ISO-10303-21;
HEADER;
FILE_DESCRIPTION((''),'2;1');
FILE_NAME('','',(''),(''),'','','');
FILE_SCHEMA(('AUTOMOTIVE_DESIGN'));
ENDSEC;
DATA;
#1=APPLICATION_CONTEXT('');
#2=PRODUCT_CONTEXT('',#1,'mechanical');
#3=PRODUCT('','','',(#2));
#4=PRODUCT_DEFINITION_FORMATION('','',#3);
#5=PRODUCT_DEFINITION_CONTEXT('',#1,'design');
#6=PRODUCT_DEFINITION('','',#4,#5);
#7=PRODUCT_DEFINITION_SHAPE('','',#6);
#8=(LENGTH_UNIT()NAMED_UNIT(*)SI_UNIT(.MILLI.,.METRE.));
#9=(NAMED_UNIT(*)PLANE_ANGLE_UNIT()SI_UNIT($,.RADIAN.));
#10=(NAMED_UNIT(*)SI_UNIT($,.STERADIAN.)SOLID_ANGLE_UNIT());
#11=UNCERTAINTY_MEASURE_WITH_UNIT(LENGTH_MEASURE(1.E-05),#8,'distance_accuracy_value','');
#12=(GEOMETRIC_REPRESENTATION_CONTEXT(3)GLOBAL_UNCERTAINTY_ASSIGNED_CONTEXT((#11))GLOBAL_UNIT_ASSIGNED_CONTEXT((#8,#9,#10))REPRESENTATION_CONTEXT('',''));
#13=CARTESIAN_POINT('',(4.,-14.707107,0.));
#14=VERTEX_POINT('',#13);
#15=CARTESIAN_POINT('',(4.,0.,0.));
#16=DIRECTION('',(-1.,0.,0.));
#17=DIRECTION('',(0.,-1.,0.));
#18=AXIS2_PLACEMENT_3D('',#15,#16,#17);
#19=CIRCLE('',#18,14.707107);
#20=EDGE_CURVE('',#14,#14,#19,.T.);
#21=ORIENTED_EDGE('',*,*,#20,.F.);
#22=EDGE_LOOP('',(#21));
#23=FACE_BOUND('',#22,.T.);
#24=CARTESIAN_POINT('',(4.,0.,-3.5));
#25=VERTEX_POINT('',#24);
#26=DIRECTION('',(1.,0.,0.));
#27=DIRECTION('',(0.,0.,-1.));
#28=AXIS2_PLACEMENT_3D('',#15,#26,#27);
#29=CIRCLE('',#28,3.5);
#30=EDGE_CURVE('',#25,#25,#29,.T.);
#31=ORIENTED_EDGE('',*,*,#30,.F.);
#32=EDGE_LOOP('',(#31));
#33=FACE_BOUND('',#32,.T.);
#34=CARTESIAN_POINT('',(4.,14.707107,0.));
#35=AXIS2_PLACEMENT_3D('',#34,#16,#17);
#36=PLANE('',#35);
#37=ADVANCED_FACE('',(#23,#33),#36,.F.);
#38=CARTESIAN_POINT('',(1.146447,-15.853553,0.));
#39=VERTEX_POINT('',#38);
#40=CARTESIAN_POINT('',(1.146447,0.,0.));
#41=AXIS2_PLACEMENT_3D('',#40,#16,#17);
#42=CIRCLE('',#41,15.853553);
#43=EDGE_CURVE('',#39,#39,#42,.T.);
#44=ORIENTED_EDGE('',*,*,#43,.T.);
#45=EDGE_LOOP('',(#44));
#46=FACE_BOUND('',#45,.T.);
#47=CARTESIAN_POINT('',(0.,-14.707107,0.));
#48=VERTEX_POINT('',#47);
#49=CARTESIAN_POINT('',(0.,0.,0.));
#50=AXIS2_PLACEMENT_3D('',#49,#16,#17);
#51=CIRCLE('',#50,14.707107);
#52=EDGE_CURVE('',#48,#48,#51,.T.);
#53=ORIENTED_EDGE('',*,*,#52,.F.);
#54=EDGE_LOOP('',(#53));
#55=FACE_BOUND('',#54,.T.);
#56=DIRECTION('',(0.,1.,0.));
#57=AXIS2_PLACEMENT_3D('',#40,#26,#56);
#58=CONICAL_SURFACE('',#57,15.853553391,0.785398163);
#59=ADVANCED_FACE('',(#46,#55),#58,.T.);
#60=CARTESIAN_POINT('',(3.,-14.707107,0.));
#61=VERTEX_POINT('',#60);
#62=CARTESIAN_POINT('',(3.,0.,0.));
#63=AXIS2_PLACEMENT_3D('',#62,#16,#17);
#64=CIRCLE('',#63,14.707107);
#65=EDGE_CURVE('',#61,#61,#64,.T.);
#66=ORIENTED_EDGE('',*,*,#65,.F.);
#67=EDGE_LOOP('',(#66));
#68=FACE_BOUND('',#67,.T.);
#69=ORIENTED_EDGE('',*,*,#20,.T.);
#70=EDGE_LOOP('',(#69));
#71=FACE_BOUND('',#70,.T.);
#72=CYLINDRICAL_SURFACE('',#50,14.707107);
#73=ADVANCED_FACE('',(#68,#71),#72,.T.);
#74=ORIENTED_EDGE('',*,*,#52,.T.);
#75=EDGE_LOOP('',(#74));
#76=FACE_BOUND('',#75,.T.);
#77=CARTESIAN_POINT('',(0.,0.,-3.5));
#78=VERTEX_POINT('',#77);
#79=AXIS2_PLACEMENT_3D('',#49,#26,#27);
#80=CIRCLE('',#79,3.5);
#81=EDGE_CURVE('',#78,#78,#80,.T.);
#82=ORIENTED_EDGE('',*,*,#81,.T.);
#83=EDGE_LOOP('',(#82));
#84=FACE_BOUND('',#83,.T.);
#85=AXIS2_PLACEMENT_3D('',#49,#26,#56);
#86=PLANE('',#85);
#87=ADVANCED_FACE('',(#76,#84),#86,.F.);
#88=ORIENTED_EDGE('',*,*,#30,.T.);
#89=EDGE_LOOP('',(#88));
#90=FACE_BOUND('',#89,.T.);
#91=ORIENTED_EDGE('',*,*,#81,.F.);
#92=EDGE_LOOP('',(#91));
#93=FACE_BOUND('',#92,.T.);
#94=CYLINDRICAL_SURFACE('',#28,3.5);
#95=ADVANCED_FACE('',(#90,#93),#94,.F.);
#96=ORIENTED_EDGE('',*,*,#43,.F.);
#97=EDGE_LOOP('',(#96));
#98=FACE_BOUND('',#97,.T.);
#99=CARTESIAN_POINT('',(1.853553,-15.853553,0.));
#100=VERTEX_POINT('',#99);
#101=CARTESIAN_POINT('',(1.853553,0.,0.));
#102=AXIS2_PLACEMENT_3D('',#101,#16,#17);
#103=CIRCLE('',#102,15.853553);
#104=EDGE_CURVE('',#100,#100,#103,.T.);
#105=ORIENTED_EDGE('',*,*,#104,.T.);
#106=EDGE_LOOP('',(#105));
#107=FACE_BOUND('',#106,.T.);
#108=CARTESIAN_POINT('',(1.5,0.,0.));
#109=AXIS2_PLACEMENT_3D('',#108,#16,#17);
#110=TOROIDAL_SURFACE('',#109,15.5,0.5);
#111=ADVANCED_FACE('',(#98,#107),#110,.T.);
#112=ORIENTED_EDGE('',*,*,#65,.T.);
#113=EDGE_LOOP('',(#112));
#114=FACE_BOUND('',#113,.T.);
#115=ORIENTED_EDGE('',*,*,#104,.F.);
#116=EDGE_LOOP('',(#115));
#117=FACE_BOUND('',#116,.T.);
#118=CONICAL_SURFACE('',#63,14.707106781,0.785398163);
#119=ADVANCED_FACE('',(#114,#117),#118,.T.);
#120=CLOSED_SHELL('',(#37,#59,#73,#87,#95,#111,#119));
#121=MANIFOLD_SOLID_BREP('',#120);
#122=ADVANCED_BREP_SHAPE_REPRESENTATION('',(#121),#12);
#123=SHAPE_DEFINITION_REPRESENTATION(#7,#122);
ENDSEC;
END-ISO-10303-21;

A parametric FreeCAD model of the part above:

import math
import FreeCAD as App
import Part
import Sketcher
Q = App.Units.Quantity


def add_polygon(sketch, points):
    """Adds a closed chain of lines whose ends are joined by coincident constraints."""
    first, n = sketch.GeometryCount, len(points)
    for a, b in zip(points, points[1:] + points[:1]):
        sketch.addGeometry(Part.LineSegment(App.Vector(*a, 0), App.Vector(*b, 0)), False)
    for i in range(n):
        sketch.addConstraint(Sketcher.Constraint("Coincident", first + i, 2, first + (i + 1) % n, 1))

doc = App.newDocument("Part")
body = doc.addObject("PartDesign::Body", "Body")

# Sketch on XY plane
sketch1 = body.newObject("Sketcher::SketchObject", "Sketch")
sketch1.AttachmentSupport = (doc.getObject("XY_Plane"), [""])
sketch1.MapMode = "FlatFace"
sketch1.addGeometry(Part.LineSegment(App.Vector(0, 14.7, 0), App.Vector(0, 0, 0)), False)
sketch1.addGeometry(Part.LineSegment(App.Vector(0, 0, 0), App.Vector(4, 0, 0)), False)
sketch1.addGeometry(Part.LineSegment(App.Vector(4, 0, 0), App.Vector(4, 14.7, 0)), False)
sketch1.addGeometry(Part.LineSegment(App.Vector(4, 14.7, 0), App.Vector(3, 14.7, 0)), False)
sketch1.addGeometry(Part.LineSegment(App.Vector(3, 14.7, 0), App.Vector(1.9, 15.9, 0)), False)
sketch1.addGeometry(Part.ArcOfCircle(Part.Circle(App.Vector(1.5, 15.5, 0), App.Vector(0, 0, 1), 0.5), math.radians(45), math.radians(135)), False)
sketch1.addGeometry(Part.LineSegment(App.Vector(1.1, 15.9, 0), App.Vector(0, 14.7, 0)), False)
sketch1.addConstraint(Sketcher.Constraint("Coincident", 0, 2, 1, 1))
sketch1.addConstraint(Sketcher.Constraint("Coincident", 1, 2, 2, 1))
sketch1.addConstraint(Sketcher.Constraint("Coincident", 2, 2, 3, 1))
sketch1.addConstraint(Sketcher.Constraint("Coincident", 3, 2, 4, 1))
sketch1.addConstraint(Sketcher.Constraint("Tangent", 4, 2, 5, 1))
sketch1.addConstraint(Sketcher.Constraint("Tangent", 5, 2, 6, 1))
sketch1.addConstraint(Sketcher.Constraint("Coincident", 6, 2, 0, 1))
sketch1.addConstraint(Sketcher.Constraint("Vertical", 0))
sketch1.addConstraint(Sketcher.Constraint("Horizontal", 1))
sketch1.addConstraint(Sketcher.Constraint("Vertical", 2))
sketch1.addConstraint(Sketcher.Constraint("Horizontal", 3))
sketch1.addConstraint(Sketcher.Constraint("Coincident", 0, 2, -1, 1))
sketch1.addConstraint(Sketcher.Constraint("Perpendicular", 4, 6))
sketch1.addConstraint(Sketcher.Constraint("Horizontal", 4, 2, 5, 2))
sketch1.addConstraint(Sketcher.Constraint("Horizontal", 3, 2, 6, 2))
sketch1.addConstraint(Sketcher.Constraint("Radius", 5, Q("0.5 mm")))
sketch1.addConstraint(Sketcher.Constraint("DistanceX", 1, 1, 1, 2, Q("4 mm")))
sketch1.addConstraint(Sketcher.Constraint("DistanceX", 3, 2, 3, 1, Q("1 mm")))
sketch1.addConstraint(Sketcher.Constraint("DistanceY", -1, 1, 5, 3, Q("15.5 mm")))
revolution = body.newObject("PartDesign::Revolution", "Revolution")
revolution.Profile = sketch1
revolution.ReferenceAxis = (sketch1, ["H_Axis"])
revolution.Angle = 360

# Sketch on XY plane
sketch2 = body.newObject("Sketcher::SketchObject", "Sketch001")
sketch2.AttachmentSupport = (doc.getObject("XY_Plane"), [""])
sketch2.MapMode = "FlatFace"
add_polygon(sketch2, [(0, 3.5), (0, 0), (4, 0), (4, 3.5)])  # lines 0-3
sketch2.addConstraint(Sketcher.Constraint("Vertical", 0))
sketch2.addConstraint(Sketcher.Constraint("Horizontal", 1))
sketch2.addConstraint(Sketcher.Constraint("Vertical", 2))
sketch2.addConstraint(Sketcher.Constraint("Horizontal", 3))
sketch2.addConstraint(Sketcher.Constraint("Coincident", 0, 2, -1, 1))
sketch2.addConstraint(Sketcher.Constraint("DistanceX", 1, 1, 1, 2, Q("4 mm")))
sketch2.addConstraint(Sketcher.Constraint("DistanceY", 0, 2, 0, 1, Q("3.5 mm")))
groove = body.newObject("PartDesign::Groove", "Groove")
groove.Profile = sketch2
groove.ReferenceAxis = (sketch2, ["H_Axis"])
groove.Angle = 360

doc.recompute()
